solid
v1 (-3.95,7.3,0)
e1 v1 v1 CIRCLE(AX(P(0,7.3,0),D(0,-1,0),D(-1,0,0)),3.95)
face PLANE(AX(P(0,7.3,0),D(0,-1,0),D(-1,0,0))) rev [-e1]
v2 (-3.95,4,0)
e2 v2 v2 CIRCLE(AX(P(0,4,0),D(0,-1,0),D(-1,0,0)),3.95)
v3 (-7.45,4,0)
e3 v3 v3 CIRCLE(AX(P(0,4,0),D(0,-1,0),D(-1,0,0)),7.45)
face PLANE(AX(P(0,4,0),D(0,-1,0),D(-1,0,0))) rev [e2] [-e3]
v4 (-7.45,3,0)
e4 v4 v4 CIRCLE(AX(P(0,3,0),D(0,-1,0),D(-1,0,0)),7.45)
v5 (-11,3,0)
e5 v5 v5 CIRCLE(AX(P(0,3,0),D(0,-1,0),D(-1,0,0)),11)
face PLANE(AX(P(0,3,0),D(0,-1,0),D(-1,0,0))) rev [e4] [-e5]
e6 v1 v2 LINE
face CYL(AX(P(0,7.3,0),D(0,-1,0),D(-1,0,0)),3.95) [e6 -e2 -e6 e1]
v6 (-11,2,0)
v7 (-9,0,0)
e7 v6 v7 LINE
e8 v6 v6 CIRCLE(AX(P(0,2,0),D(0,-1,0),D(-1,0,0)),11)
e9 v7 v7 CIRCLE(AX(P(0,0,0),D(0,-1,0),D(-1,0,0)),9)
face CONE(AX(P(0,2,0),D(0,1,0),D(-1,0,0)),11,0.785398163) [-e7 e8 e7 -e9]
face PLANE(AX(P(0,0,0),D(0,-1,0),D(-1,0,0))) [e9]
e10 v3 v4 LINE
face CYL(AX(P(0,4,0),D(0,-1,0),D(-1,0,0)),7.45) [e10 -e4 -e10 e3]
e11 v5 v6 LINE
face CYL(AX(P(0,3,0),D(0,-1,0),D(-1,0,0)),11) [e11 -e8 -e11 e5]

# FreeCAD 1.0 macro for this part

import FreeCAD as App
import Part
import Sketcher
from FreeCAD import Vector
Q = App.Units.Quantity


def edges_at(feature, points):
    """Names of the edges that pass closest to the given points."""
    edges = feature.Shape.Edges
    near = lambda p: min(range(len(edges)), key=lambda i: edges[i].distToShape(Part.Vertex(*p))[0])
    return sorted({f"Edge{near(p) + 1}" for p in points})


def add_polygon(sketch, points):
    """Adds a closed chain of lines whose ends are joined by coincident constraints."""
    first, n = sketch.GeometryCount, len(points)
    for a, b in zip(points, points[1:] + points[:1]):
        sketch.addGeometry(Part.LineSegment(App.Vector(*a, 0), App.Vector(*b, 0)), False)
    for i in range(n):
        sketch.addConstraint(Sketcher.Constraint("Coincident", first + i, 2, first + (i + 1) % n, 1))

doc = App.newDocument("Part")
body = doc.addObject("PartDesign::Body", "Body")

sketch1 = doc.addObject("Sketcher::SketchObject", "Sketch")
body.addObject(sketch1)
sketch1.AttachmentSupport = (doc.XY_Plane, [""])
sketch1.MapMode = "FlatFace"
add_polygon(sketch1, [(-11, 3), (-11, 0), (0, 0), (0, 7.3), (-4, 7.3), (-4, 4), (-7.5, 4), (-7.5, 3)])
sketch1.addConstraint([
    Sketcher.Constraint("Vertical", 0),
    Sketcher.Constraint("Horizontal", 1),
    Sketcher.Constraint("Vertical", 2),
    Sketcher.Constraint("Horizontal", 3),
    Sketcher.Constraint("Vertical", 4),
    Sketcher.Constraint("Horizontal", 5),
    Sketcher.Constraint("Vertical", 6),
    Sketcher.Constraint("Horizontal", 7),
    Sketcher.Constraint("Coincident", 1, 2, -1, 1),
    Sketcher.Constraint("DistanceX", 1, 1, 1, 2, Q("11 mm")),
    Sketcher.Constraint("DistanceY", 0, 2, 0, 1, Q("3 mm")),
    Sketcher.Constraint("DistanceY", 6, 2, 6, 1, Q("1 mm")),
    Sketcher.Constraint("DistanceX", 5, 2, 5, 1, Q("3.5 mm")),
    Sketcher.Constraint("DistanceY", 2, 1, 2, 2, Q("7.3 mm")),
    Sketcher.Constraint("DistanceX", 3, 2, 3, 1, Q("3.95 mm")),
])
revolution = doc.addObject("PartDesign::Revolution", "Revolution")
body.addObject(revolution)
revolution.Profile = sketch1
revolution.ReferenceAxis = (sketch1, ["V_Axis"])
revolution.Angle = 360
doc.recompute()

chamfer = doc.addObject("PartDesign::Chamfer", "Chamfer")
body.addObject(chamfer)
chamfer.Base = (revolution, edges_at(revolution, [(11, 0, 0)]))
chamfer.Size = 2

doc.recompute()
